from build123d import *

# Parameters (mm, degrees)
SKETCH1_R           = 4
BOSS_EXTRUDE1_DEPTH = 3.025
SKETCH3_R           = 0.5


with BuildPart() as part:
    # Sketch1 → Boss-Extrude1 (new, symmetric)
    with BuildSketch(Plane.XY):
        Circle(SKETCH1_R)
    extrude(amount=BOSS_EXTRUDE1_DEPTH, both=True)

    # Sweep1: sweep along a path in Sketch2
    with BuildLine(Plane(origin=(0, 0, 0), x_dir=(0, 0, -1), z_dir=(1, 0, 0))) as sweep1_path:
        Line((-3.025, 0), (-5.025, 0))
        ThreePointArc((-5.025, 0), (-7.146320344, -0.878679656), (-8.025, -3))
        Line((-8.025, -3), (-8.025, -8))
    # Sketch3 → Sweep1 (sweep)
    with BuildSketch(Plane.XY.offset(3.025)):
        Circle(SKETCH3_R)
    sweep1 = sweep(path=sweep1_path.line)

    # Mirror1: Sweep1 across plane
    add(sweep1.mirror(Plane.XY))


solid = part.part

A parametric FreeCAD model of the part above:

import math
import FreeCAD as App
import Part
import Sketcher
Q = App.Units.Quantity

doc = App.newDocument("Part")
body = doc.addObject("PartDesign::Body", "Body")

sketch1 = body.newObject("Sketcher::SketchObject", "Sketch")
sketch1.AttachmentSupport = (doc.getObject("XY_Plane"), [""])
sketch1.MapMode = "FlatFace"
sketch1.addGeometry(Part.Circle(App.Vector(0, 0, 0), App.Vector(0, 0, 1), 4), False)
sketch1.addConstraint([
    Sketcher.Constraint("Coincident", 0, 3, -1, 1),
    Sketcher.Constraint("Diameter", 0, Q("8 mm")),
])
pad1 = body.newObject("PartDesign::Pad", "Pad")
pad1.Profile = sketch1
pad1.Length = 6.05
pad1.Midplane = True

sketch2 = body.newObject("Sketcher::SketchObject", "Sketch001")
sketch2.AttachmentSupport = (doc.getObject("XY_Plane"), [""])
sketch2.MapMode = "FlatFace"
sketch2.AttachmentOffset = App.Placement(App.Vector(0, 0, 3.025), App.Rotation())
sketch2.addGeometry(Part.Circle(App.Vector(0, 0, 0), App.Vector(0, 0, 1), 0.5), False)
sketch2.addConstraint([
    Sketcher.Constraint("Coincident", 0, 3, -1, 1),
    Sketcher.Constraint("Diameter", 0, Q("1 mm")),
])

sketch3 = body.newObject("Sketcher::SketchObject", "Sketch002")
sketch3.AttachmentSupport = (doc.getObject("YZ_Plane"), [""])
sketch3.MapMode = "FlatFace"
sketch3.addGeometry([
    Part.LineSegment(App.Vector(0, 3.025, 0), App.Vector(0, 5.025, 0)),
    Part.ArcOfCircle(Part.Circle(App.Vector(-3, 5.025, 0), App.Vector(0, 0, 1), 3), math.radians(0), math.radians(90)),
    Part.LineSegment(App.Vector(-3, 8.025, 0), App.Vector(-8, 8.025, 0)),
], False)
sketch3.addConstraint([
    Sketcher.Constraint("Tangent", 0, 2, 1, 1),
    Sketcher.Constraint("Tangent", 1, 2, 2, 1),
    Sketcher.Constraint("Vertical", 0),
    Sketcher.Constraint("Horizontal", 2),
    Sketcher.Constraint("PointOnObject", 0, 1, -2),
    Sketcher.Constraint("Radius", 1, Q("3 mm")),
    Sketcher.Constraint("DistanceX", 2, 2, 2, 1, Q("5 mm")),
    Sketcher.Constraint("DistanceY", 0, 1, 0, 2, Q("2 mm")),
    Sketcher.Constraint("DistanceY", -1, 1, 1, 3, Q("5.025 mm")),
])
doc.recompute()

additivepipe = body.newObject("PartDesign::AdditivePipe", "AdditivePipe")
additivepipe.Profile = sketch2
additivepipe.Spine = (sketch3, ["Edge1", "Edge2", "Edge3"])
doc.recompute()

mirrored = body.newObject("PartDesign::Mirrored", "Mirrored")
mirrored.Originals = [additivepipe]
mirrored.MirrorPlane = (doc.getObject("XY_Plane"), [""])
body.Tip = mirrored

doc.recompute()
